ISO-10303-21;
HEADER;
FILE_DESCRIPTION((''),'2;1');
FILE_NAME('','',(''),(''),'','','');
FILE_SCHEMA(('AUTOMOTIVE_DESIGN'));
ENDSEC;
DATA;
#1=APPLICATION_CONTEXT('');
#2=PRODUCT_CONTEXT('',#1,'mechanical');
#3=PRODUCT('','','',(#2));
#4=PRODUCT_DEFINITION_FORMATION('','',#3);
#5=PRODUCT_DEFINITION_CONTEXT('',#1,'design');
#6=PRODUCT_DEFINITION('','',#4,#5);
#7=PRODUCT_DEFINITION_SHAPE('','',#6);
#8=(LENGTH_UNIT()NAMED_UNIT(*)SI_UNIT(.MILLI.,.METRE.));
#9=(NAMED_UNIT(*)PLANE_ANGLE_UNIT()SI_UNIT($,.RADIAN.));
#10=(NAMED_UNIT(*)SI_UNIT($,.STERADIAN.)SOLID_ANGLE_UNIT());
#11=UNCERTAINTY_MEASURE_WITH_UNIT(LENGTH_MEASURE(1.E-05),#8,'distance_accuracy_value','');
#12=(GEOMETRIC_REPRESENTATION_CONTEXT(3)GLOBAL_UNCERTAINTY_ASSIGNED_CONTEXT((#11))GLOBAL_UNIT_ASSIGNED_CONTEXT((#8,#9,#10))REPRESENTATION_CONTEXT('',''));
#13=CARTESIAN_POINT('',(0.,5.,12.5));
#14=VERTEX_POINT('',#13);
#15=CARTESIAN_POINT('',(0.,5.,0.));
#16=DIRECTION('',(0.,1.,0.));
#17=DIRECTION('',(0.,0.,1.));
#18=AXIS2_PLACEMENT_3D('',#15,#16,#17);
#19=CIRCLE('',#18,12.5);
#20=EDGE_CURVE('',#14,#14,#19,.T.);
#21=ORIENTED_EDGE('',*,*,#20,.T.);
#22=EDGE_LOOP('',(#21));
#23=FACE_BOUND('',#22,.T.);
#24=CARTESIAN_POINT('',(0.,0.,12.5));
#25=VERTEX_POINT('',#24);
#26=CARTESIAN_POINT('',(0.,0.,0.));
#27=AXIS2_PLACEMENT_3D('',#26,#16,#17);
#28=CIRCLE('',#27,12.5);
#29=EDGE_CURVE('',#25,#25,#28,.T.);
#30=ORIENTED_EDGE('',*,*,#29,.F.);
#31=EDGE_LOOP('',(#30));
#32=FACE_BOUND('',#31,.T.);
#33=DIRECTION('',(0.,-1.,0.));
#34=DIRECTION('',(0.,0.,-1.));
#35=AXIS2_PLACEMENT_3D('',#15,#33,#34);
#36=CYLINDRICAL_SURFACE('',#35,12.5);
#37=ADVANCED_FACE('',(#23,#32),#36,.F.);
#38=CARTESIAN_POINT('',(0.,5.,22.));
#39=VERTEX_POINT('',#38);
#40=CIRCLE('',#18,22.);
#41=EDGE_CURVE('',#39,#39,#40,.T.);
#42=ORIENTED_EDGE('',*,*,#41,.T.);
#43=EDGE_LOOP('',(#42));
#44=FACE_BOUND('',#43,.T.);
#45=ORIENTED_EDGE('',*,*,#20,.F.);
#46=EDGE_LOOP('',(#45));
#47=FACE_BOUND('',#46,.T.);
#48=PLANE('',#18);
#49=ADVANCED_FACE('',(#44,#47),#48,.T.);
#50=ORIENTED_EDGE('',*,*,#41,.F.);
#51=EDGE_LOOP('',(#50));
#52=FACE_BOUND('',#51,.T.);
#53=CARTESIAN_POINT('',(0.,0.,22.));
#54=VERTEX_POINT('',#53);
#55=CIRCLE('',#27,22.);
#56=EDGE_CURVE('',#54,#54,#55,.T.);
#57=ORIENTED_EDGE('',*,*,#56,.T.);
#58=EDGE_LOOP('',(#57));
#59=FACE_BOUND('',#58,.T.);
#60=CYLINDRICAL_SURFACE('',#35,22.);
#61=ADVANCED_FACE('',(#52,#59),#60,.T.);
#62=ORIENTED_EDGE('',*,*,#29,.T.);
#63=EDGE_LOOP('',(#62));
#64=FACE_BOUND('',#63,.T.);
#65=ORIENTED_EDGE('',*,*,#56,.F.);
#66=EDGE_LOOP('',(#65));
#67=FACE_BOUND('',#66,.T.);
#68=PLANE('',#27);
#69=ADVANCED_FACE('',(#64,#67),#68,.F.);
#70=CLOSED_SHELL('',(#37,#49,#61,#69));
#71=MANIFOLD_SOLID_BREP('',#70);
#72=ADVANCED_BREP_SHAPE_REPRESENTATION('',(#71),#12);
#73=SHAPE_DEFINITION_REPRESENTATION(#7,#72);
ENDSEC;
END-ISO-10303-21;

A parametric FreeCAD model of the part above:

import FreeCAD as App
import Part
import Sketcher

V = App.Vector
Q = App.Units.Quantity

doc = App.newDocument("Part")
params = doc.addObject("Spreadsheet::Sheet", "Params")
for row, (alias, value) in enumerate([
    ("sketch1_diameter", "44 mm"),
    ("sketch1_diameter2", "25 mm"),
    ("pad1_length", "5 mm"),
], start=1):
    params.set(f"A{row}", alias)
    params.set(f"B{row}", "=" + value)
    params.setAlias(f"B{row}", alias)

body = doc.addObject("PartDesign::Body", "Body")

# Sketch on XZ plane
sketch1 = body.newObject("Sketcher::SketchObject", "Sketch")
sketch1.AttachmentSupport = (doc.getObject("XZ_Plane"), [""])
sketch1.MapMode = "FlatFace"
sketch1.addGeometry([
    Part.Circle(V(0, 0, 0), V(0, 0, 1), 22),
    Part.Circle(V(0, 0, 0), V(0, 0, 1), 12.5),
], False)
sketch1.addConstraint([
    Sketcher.Constraint("Coincident", 0, 3, -1, 1),
    Sketcher.Constraint("Coincident", 1, 3, -1, 1),
    Sketcher.Constraint("Diameter", 0, Q("44 mm")),
    Sketcher.Constraint("Diameter", 1, Q("25 mm")),
])
sketch1.setExpression("Constraints[2]", "Params.sketch1_diameter")
sketch1.setExpression("Constraints[3]", "Params.sketch1_diameter2")
pad1 = body.newObject("PartDesign::Pad", "Pad")
pad1.Profile = sketch1
pad1.setExpression("Length", "Params.pad1_length")
pad1.Reversed = True

doc.recompute()
